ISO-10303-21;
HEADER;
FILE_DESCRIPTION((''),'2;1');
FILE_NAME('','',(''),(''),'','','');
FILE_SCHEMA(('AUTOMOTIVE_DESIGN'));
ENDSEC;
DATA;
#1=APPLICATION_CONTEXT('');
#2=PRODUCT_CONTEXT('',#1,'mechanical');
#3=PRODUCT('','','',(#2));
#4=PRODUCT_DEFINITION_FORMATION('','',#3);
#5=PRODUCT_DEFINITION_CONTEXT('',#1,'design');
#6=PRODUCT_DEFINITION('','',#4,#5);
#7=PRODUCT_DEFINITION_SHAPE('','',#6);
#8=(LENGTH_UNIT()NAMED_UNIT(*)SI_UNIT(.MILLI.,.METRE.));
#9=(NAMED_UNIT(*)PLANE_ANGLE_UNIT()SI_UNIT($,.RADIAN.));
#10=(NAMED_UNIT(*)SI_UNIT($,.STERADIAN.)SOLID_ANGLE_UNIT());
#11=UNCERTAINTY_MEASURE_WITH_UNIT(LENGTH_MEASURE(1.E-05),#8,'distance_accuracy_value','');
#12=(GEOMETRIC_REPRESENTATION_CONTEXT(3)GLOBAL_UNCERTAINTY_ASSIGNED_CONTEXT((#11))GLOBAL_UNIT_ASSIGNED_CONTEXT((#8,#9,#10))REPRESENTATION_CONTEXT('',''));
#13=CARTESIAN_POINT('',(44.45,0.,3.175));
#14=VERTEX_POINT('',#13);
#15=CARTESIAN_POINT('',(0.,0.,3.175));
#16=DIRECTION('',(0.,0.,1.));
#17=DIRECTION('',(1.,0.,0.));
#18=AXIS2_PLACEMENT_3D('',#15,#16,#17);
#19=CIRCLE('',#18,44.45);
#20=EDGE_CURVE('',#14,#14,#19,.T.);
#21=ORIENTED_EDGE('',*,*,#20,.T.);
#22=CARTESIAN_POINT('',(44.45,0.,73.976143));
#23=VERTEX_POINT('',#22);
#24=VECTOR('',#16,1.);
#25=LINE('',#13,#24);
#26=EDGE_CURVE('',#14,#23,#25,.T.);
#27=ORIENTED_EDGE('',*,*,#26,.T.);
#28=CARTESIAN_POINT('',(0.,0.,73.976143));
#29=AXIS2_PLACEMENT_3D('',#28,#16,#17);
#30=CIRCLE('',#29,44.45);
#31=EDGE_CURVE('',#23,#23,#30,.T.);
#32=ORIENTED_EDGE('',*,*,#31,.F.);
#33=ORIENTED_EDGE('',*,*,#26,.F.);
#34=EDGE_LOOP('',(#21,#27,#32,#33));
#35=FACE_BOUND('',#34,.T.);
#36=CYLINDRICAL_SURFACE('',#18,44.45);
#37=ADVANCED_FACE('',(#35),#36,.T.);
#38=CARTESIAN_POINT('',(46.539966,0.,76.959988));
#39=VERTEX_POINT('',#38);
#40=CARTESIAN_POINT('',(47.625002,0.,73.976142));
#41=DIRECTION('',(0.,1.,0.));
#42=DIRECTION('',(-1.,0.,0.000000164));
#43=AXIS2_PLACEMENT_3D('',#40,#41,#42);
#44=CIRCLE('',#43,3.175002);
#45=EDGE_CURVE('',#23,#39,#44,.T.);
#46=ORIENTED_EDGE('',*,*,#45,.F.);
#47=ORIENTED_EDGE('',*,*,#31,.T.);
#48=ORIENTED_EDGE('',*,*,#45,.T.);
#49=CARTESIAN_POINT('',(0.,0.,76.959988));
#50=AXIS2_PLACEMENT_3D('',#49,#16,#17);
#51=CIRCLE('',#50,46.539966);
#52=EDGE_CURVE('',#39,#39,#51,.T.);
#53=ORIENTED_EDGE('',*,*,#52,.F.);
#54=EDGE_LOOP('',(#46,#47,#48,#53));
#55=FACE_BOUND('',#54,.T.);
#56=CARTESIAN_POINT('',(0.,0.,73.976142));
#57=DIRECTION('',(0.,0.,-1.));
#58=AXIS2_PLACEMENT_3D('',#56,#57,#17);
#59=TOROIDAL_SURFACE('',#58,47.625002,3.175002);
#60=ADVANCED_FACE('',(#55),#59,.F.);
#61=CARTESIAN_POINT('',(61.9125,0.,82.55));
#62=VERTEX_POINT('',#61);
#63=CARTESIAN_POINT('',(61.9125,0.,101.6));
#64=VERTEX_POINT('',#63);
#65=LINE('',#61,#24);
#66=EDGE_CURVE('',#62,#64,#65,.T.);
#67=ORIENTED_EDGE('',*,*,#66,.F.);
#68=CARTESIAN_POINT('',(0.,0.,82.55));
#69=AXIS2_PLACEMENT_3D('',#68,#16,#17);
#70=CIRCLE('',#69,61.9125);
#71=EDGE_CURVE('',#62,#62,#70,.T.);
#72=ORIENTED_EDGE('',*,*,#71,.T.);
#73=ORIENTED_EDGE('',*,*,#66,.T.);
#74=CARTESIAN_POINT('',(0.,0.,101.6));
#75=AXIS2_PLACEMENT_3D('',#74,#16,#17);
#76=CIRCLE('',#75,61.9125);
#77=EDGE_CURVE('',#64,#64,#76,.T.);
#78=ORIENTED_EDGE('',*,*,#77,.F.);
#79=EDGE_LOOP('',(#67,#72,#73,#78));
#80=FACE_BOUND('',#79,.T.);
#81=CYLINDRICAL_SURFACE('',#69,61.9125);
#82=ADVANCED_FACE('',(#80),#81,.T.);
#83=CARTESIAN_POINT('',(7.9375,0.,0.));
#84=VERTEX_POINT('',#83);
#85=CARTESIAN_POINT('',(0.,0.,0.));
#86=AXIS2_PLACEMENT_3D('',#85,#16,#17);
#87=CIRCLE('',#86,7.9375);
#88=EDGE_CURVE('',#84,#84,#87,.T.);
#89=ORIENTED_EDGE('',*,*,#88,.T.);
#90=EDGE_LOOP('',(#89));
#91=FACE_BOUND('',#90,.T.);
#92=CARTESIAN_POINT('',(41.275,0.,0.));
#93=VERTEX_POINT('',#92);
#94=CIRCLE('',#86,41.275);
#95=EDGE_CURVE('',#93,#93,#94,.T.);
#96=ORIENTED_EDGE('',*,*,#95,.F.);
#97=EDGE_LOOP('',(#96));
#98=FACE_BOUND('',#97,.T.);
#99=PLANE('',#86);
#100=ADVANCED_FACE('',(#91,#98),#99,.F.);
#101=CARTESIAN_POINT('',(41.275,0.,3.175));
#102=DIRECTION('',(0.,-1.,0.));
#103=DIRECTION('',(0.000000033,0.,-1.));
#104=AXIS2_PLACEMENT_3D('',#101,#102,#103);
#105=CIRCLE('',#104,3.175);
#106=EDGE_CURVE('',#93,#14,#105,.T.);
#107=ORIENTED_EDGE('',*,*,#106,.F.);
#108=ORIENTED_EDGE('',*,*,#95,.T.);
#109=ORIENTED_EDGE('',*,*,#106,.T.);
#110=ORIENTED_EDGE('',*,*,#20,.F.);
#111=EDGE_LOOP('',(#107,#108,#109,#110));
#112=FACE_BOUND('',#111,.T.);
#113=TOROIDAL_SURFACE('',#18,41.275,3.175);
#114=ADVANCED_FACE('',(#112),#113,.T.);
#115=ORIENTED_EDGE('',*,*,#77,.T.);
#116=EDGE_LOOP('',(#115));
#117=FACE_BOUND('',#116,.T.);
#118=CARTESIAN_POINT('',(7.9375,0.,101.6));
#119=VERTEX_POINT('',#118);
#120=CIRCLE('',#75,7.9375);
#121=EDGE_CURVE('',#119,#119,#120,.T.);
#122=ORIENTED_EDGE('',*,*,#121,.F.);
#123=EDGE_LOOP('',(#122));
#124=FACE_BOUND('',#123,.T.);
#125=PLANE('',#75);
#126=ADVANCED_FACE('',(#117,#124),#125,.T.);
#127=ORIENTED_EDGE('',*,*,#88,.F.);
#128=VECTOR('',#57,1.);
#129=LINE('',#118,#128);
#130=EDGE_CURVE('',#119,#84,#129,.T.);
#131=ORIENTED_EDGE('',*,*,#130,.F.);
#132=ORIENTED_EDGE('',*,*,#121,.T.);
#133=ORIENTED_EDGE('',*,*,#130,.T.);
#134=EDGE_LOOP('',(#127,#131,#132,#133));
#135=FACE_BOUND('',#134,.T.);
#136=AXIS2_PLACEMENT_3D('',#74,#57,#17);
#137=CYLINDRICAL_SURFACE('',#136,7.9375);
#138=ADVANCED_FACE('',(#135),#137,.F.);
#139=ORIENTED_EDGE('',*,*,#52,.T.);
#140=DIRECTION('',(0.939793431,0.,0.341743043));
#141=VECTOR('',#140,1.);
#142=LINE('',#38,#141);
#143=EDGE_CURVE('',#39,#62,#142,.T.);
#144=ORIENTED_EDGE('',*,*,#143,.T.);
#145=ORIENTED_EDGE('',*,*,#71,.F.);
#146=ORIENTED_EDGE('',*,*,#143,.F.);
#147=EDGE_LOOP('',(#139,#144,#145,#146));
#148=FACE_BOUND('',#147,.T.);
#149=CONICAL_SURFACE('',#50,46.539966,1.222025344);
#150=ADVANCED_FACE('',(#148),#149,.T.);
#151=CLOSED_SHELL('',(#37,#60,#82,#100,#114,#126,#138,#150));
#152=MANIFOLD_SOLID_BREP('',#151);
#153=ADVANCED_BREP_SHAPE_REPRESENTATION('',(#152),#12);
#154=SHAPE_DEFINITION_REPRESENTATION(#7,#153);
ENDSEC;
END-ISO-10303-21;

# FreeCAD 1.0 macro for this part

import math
import FreeCAD as App
import Part
import Sketcher

V = App.Vector
Q = App.Units.Quantity

doc = App.newDocument("Part")
body = doc.addObject("PartDesign::Body", "Body")

sketch1 = body.newObject("Sketcher::SketchObject", "Sketch")
sketch1.AttachmentSupport = (doc.getObject("XZ_Plane"), [""])
sketch1.MapMode = "FlatFace"
sketch1.addGeometry([
    Part.LineSegment(V(7.9, 101.6, 0), V(7.9, 0, 0)),
    Part.LineSegment(V(7.9, 0, 0), V(41.3, 0, 0)),
    Part.ArcOfCircle(Part.Circle(V(41.3, 3.2, 0), V(0, 0, 1), 3.2), math.radians(-90), math.radians(0)),
    Part.LineSegment(V(44.5, 3.2, 0), V(44.5, 74, 0)),
    Part.ArcOfCircle(Part.Circle(V(47.6, 74, 0), V(0, 0, 1), 3.2), math.radians(110), math.radians(180)),
    Part.LineSegment(V(46.5, 77, 0), V(61.9, 82.5, 0)),
    Part.LineSegment(V(61.9, 82.5, 0), V(61.9, 101.6, 0)),
    Part.LineSegment(V(61.9, 101.6, 0), V(7.9, 101.6, 0)),
], False)
sketch1.addConstraint([
    Sketcher.Constraint("Coincident", 0, 2, 1, 1),
    Sketcher.Constraint("Tangent", 1, 2, 2, 1),
    Sketcher.Constraint("Tangent", 2, 2, 3, 1),
    Sketcher.Constraint("Tangent", 3, 2, 4, 2),
    Sketcher.Constraint("Tangent", 4, 1, 5, 1),
    Sketcher.Constraint("Coincident", 5, 2, 6, 1),
    Sketcher.Constraint("Coincident", 6, 2, 7, 1),
    Sketcher.Constraint("Coincident", 7, 2, 0, 1),
    Sketcher.Constraint("Vertical", 0),
    Sketcher.Constraint("Horizontal", 1),
    Sketcher.Constraint("Vertical", 3),
    Sketcher.Constraint("Vertical", 6),
    Sketcher.Constraint("Horizontal", 7),
    Sketcher.Constraint("Equal", 2, 4),
    Sketcher.Constraint("PointOnObject", 0, 2, -1),
    Sketcher.Constraint("DistanceY", 0, 2, 0, 1, Q("4 in")),
    Sketcher.Constraint("Radius", 2, Q("0.125 in")),
    Sketcher.Constraint("DistanceY", 6, 1, 6, 2, Q("0.75 in")),
    Sketcher.Constraint("DistanceX", 1, 1, 1, 2, Q("1.3125 in")),
    Sketcher.Constraint("DistanceX", 7, 2, 7, 1, Q("2.125 in")),
    Sketcher.Constraint("DistanceX", -1, 1, 2, 2, Q("1.75 in")),
    Sketcher.Constraint("DistanceY", 3, 1, 3, 2, Q("70.801143 mm")),
])
revolution = body.newObject("PartDesign::Revolution", "Revolution")
revolution.Profile = sketch1
revolution.ReferenceAxis = (sketch1, ["V_Axis"])
revolution.Angle = 360

doc.recompute()
